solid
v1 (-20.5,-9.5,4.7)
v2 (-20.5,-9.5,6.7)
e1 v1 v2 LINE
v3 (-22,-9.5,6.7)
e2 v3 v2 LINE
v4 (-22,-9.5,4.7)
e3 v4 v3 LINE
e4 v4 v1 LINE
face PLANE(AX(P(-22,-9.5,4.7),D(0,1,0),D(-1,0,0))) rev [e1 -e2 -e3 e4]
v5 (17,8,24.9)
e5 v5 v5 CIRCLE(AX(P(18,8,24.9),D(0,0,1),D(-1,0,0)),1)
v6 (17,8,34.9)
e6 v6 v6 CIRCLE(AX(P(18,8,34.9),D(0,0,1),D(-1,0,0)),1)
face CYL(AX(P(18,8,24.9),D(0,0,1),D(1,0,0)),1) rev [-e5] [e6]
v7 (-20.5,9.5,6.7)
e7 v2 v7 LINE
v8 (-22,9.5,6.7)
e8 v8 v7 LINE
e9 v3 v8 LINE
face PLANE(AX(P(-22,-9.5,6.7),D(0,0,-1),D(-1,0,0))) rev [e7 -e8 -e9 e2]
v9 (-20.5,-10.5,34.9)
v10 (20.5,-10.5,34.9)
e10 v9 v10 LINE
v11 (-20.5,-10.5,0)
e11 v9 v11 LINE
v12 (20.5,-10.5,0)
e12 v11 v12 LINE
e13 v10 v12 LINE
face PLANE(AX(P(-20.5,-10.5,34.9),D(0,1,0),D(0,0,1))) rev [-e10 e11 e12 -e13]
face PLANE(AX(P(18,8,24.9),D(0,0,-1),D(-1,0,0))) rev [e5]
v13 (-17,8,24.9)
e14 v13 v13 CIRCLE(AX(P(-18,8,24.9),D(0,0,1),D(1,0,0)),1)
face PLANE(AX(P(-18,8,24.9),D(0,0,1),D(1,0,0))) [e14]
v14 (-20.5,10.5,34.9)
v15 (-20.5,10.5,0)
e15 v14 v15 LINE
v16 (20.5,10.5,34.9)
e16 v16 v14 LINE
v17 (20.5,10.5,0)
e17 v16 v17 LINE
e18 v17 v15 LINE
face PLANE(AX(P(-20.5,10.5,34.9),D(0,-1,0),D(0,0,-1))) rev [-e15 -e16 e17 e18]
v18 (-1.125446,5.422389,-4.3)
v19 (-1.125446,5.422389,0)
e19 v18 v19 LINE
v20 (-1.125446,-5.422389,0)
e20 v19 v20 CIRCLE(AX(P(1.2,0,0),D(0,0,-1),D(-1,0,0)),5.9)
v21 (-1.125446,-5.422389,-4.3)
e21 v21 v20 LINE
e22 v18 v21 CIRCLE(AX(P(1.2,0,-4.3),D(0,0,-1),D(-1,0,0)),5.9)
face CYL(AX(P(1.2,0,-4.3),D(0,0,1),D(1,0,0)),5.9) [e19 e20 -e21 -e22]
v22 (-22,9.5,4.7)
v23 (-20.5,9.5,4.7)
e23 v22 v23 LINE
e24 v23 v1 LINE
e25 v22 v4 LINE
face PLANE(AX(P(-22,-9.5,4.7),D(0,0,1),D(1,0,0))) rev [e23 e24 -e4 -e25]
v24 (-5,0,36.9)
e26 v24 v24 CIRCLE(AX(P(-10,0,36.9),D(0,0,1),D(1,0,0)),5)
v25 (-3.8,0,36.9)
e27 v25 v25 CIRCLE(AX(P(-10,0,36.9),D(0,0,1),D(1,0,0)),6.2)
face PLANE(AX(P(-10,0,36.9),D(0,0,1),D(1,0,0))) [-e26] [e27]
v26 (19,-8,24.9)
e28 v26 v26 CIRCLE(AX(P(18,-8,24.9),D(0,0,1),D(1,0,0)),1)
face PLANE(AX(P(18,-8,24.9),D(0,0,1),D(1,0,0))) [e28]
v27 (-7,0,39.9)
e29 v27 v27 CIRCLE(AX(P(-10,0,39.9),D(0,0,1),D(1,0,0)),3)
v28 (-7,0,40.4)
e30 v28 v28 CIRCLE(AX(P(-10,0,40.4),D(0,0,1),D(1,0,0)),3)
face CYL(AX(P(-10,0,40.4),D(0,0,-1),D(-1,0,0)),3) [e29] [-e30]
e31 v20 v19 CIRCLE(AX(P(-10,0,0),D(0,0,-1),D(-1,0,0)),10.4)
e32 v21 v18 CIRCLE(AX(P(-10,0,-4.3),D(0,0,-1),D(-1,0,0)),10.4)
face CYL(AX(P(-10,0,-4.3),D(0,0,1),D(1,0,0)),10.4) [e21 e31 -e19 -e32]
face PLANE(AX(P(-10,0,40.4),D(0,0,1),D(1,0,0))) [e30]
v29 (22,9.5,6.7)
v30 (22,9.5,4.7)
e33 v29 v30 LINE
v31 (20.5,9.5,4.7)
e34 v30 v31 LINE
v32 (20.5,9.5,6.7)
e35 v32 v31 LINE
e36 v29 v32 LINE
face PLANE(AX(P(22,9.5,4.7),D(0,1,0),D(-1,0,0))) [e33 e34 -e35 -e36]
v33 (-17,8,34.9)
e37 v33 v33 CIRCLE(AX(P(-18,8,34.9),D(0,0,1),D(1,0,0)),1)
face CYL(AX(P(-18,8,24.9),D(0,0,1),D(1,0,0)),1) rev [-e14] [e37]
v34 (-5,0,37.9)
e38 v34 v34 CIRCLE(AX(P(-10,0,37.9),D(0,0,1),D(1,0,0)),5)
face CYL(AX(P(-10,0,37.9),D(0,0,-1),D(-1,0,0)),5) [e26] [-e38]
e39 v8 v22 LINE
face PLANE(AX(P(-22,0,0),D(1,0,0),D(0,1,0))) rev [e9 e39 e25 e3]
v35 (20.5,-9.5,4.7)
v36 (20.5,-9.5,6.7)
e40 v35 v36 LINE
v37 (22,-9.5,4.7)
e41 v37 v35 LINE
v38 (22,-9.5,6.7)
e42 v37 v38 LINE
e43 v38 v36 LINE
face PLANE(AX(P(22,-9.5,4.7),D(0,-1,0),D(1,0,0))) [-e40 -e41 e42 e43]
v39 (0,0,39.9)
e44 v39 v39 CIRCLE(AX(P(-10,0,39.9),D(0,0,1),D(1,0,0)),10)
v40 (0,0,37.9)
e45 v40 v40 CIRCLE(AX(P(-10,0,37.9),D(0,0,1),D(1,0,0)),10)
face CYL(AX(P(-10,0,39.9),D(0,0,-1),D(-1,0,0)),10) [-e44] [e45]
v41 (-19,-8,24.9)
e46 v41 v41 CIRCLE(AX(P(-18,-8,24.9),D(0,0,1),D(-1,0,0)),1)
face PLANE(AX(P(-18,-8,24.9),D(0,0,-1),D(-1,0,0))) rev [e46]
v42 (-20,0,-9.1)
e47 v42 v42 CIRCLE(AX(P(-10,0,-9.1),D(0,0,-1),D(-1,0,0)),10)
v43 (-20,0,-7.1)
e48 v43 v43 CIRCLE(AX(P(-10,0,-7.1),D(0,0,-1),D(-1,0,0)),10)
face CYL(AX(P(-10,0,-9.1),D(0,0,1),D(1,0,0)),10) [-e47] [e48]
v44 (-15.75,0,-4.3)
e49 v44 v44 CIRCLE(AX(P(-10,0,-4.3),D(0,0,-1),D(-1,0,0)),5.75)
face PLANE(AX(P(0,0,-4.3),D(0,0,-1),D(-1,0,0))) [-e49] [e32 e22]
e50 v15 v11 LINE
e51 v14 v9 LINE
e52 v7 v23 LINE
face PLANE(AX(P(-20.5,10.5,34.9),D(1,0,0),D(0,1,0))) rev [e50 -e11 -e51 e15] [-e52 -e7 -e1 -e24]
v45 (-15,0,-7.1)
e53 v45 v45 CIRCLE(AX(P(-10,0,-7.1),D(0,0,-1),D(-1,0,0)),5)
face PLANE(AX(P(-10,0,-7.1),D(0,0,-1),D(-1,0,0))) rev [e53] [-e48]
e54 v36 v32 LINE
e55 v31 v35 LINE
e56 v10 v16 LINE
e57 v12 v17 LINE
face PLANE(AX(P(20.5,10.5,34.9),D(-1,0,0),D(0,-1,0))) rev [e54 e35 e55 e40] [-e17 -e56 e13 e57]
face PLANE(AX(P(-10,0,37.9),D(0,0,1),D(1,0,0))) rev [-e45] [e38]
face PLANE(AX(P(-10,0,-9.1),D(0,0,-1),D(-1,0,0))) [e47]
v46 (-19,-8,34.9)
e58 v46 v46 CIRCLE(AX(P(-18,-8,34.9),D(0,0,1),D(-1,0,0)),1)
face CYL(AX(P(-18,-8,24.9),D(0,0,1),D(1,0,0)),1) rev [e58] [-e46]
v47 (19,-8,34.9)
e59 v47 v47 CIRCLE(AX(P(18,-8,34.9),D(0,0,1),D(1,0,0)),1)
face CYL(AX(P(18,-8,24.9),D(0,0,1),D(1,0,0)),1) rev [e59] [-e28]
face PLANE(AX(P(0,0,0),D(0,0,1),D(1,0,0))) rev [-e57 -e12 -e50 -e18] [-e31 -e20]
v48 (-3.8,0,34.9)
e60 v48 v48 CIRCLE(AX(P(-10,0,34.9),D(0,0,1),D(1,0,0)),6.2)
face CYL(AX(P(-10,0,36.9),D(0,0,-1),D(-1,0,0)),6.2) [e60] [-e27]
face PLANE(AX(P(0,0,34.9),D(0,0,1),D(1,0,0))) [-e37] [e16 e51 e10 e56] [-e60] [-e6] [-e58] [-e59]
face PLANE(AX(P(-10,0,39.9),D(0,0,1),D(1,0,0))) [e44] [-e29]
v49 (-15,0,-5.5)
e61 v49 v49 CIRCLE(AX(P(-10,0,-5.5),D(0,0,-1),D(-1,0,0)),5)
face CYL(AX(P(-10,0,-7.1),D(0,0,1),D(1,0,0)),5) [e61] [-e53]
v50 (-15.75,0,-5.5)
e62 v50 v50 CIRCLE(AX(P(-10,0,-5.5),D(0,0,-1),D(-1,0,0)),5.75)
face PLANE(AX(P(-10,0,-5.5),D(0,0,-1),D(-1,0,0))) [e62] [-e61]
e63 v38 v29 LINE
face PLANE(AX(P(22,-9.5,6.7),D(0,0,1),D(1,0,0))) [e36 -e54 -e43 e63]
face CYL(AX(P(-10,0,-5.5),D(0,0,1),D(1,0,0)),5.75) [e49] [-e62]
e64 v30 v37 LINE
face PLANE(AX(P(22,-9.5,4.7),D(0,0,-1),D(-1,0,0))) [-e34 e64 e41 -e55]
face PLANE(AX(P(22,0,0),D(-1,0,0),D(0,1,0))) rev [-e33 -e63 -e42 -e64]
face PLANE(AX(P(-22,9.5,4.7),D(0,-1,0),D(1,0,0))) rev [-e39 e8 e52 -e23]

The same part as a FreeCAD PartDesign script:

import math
import FreeCAD as App
import Part
import Sketcher
from FreeCAD import Vector
Q = App.Units.Quantity


def add_polygon(sketch, points):
    """Adds a closed chain of lines whose ends are joined by coincident constraints."""
    first, n = sketch.GeometryCount, len(points)
    for a, b in zip(points, points[1:] + points[:1]):
        sketch.addGeometry(Part.LineSegment(App.Vector(*a, 0), App.Vector(*b, 0)), False)
    for i in range(n):
        sketch.addConstraint(Sketcher.Constraint("Coincident", first + i, 2, first + (i + 1) % n, 1))

doc = App.newDocument("Part")
body = doc.addObject("PartDesign::Body", "Body")

# Sketch on XY plane
sketch1 = doc.addObject("Sketcher::SketchObject", "Sketch")
body.addObject(sketch1)
sketch1.AttachmentSupport = (doc.XY_Plane, [""])
sketch1.MapMode = "FlatFace"
add_polygon(sketch1, [(-20, 10), (-20, -10), (20, -10), (20, 10)])  # lines 0-3
sketch1.addConstraint([
    Sketcher.Constraint("Vertical", 0),
    Sketcher.Constraint("Horizontal", 1),
    Sketcher.Constraint("Vertical", 2),
    Sketcher.Constraint("Horizontal", 3),
    Sketcher.Constraint("Symmetric", 0, 2, 2, 2, -1, 1),
    Sketcher.Constraint("DistanceX", 1, 1, 1, 2, Q("41 mm")),
    Sketcher.Constraint("DistanceY", 0, 2, 0, 1, Q("21 mm")),
])
pad1 = doc.addObject("PartDesign::Pad", "Pad")
body.addObject(pad1)
pad1.Profile = sketch1
pad1.Length = 34.9

# Sketch on XY plane
sketch2 = doc.addObject("Sketcher::SketchObject", "Sketch001")
body.addObject(sketch2)
sketch2.AttachmentSupport = (doc.XY_Plane, [""])
sketch2.MapMode = "FlatFace"
sketch2.addGeometry([
    Part.ArcOfCircle(Part.Circle(Vector(1, 0, 0), Vector(0, 0, 1), 6), math.radians(-113), math.radians(113)),
    Part.ArcOfCircle(Part.Circle(Vector(-10, 0, 0), Vector(0, 0, 1), 10), math.radians(31), math.radians(329)),
], False)
sketch2.addConstraint([
    Sketcher.Constraint("Coincident", 0, 1, 1, 2),
    Sketcher.Constraint("Coincident", 1, 1, 0, 2),
    Sketcher.Constraint("Symmetric", 0, 1, 1, 1, -1),
    Sketcher.Constraint("Radius", 0, Q("5.9 mm")),
    Sketcher.Constraint("Radius", 1, Q("10.4 mm")),
    Sketcher.Constraint("DistanceX", 1, 3, -1, 1, Q("10 mm")),
    Sketcher.Constraint("DistanceX", -1, 1, 0, 3, Q("1.2 mm")),
])
pad2 = doc.addObject("PartDesign::Pad", "Pad001")
body.addObject(pad2)
pad2.Profile = sketch2
pad2.Length = 4.3
pad2.Reversed = True

# Sketch on XY plane
sketch3 = doc.addObject("Sketcher::SketchObject", "Sketch002")
body.addObject(sketch3)
sketch3.AttachmentSupport = (doc.XY_Plane, [""])
sketch3.MapMode = "FlatFace"
sketch3.AttachmentOffset = App.Placement(Vector(0, 0, -4.3), App.Rotation())
sketch3.addGeometry(Part.Circle(Vector(-10, 0, 0), Vector(0, 0, 1), 6), False)
sketch3.addConstraint([
    Sketcher.Constraint("PointOnObject", 0, 3, -1),
    Sketcher.Constraint("Diameter", 0, Q("11.5 mm")),
    Sketcher.Constraint("DistanceX", 0, 3, -1, 1, Q("10 mm")),
])
pad3 = doc.addObject("PartDesign::Pad", "Pad002")
body.addObject(pad3)
pad3.Profile = sketch3
pad3.Length = 1.2
pad3.Reversed = True

# Sketch on XY plane
sketch4 = doc.addObject("Sketcher::SketchObject", "Sketch003")
body.addObject(sketch4)
sketch4.AttachmentSupport = (doc.XY_Plane, [""])
sketch4.MapMode = "FlatFace"
sketch4.AttachmentOffset = App.Placement(Vector(0, 0, -5.5), App.Rotation())
sketch4.addGeometry(Part.Circle(Vector(-10, 0, 0), Vector(0, 0, 1), 3), False)
sketch4.addConstraint([
    Sketcher.Constraint("PointOnObject", 0, 3, -1),
    Sketcher.Constraint("Diameter", 0, Q("6 mm")),
    Sketcher.Constraint("DistanceX", 0, 3, -1, 1, Q("10 mm")),
])
pad4 = doc.addObject("PartDesign::Pad", "Pad003")
body.addObject(pad4)
pad4.Profile = sketch4
pad4.Length = 3.4
pad4.Reversed = True

# Sketch on YZ plane
sketch5 = doc.addObject("Sketcher::SketchObject", "Sketch004")
body.addObject(sketch5)
sketch5.AttachmentSupport = (doc.YZ_Plane, [""])
sketch5.MapMode = "FlatFace"
sketch5.AttachmentOffset = App.Placement(Vector(0, 0, -20.5), App.Rotation())
add_polygon(sketch5, [(9.5, 4.7), (-9.5, 4.7), (-9.5, 6.7), (9.5, 6.7)])  # lines 0-3
sketch5.addConstraint([
    Sketcher.Constraint("Horizontal", 0),
    Sketcher.Constraint("Vertical", 1),
    Sketcher.Constraint("Horizontal", 2),
    Sketcher.Constraint("Vertical", 3),
    Sketcher.Constraint("DistanceX", 0, 2, 0, 1, Q("19 mm")),
    Sketcher.Constraint("DistanceY", 1, 1, 1, 2, Q("2 mm")),
    Sketcher.Constraint("DistanceX", 0, 2, -1, 1, Q("9.5 mm")),
    Sketcher.Constraint("DistanceY", -1, 1, 0, 2, Q("4.7 mm")),
])
pad5 = doc.addObject("PartDesign::Pad", "Pad004")
body.addObject(pad5)
pad5.Profile = sketch5
pad5.Length = 1.5
pad5.Reversed = True
doc.recompute()

mirrored = doc.addObject("PartDesign::Mirrored", "Mirrored")
body.addObject(mirrored)
mirrored.Originals = [pad5]
mirrored.MirrorPlane = (doc.YZ_Plane, [""])
body.Tip = mirrored

# Sketch on XY plane
sketch6 = doc.addObject("Sketcher::SketchObject", "Sketch005")
body.addObject(sketch6)
sketch6.AttachmentSupport = (doc.XY_Plane, [""])
sketch6.MapMode = "FlatFace"
sketch6.AttachmentOffset = App.Placement(Vector(0, 0, 34.9), App.Rotation())
sketch6.addGeometry(Part.Circle(Vector(-10, 0, 0), Vector(0, 0, 1), 6), False)
sketch6.addConstraint([
    Sketcher.Constraint("PointOnObject", 0, 3, -1),
    Sketcher.Constraint("Diameter", 0, Q("12.4 mm")),
    Sketcher.Constraint("DistanceX", 0, 3, -1, 1, Q("10 mm")),
])
pad6 = doc.addObject("PartDesign::Pad", "Pad005")
body.addObject(pad6)
pad6.Profile = sketch6
pad6.Length = 2

# Sketch on XY plane
sketch7 = doc.addObject("Sketcher::SketchObject", "Sketch006")
body.addObject(sketch7)
sketch7.AttachmentSupport = (doc.XY_Plane, [""])
sketch7.MapMode = "FlatFace"
sketch7.AttachmentOffset = App.Placement(Vector(0, 0, 36.9), App.Rotation())
sketch7.addGeometry(Part.Circle(Vector(-10, 0, 0), Vector(0, 0, 1), 3), False)
sketch7.addConstraint([
    Sketcher.Constraint("PointOnObject", 0, 3, -1),
    Sketcher.Constraint("Diameter", 0, Q("6 mm")),
    Sketcher.Constraint("DistanceX", 0, 3, -1, 1, Q("10 mm")),
])
pad7 = doc.addObject("PartDesign::Pad", "Pad006")
body.addObject(pad7)
pad7.Profile = sketch7
pad7.Length = 3.5

# Sketch on XY plane
sketch8 = doc.addObject("Sketcher::SketchObject", "Sketch007")
body.addObject(sketch8)
sketch8.AttachmentSupport = (doc.XY_Plane, [""])
sketch8.MapMode = "FlatFace"
sketch8.AttachmentOffset = App.Placement(Vector(0, 0, 34.9), App.Rotation())
sketch8.addGeometry([
    Part.Circle(Vector(-18, 8, 0), Vector(0, 0, 1), 1),
    Part.Circle(Vector(18, 8, 0), Vector(0, 0, 1), 1),
    Part.Circle(Vector(18, -8, 0), Vector(0, 0, 1), 1),
    Part.Circle(Vector(-18, -8, 0), Vector(0, 0, 1), 1),
], False)
sketch8.addConstraint([
    Sketcher.Constraint("Equal", 0, 1),
    Sketcher.Constraint("Equal", 1, 2),
    Sketcher.Constraint("Equal", 2, 3),
    Sketcher.Constraint("Symmetric", 0, 3, 2, 3, -1, 1),
    Sketcher.Constraint("Symmetric", 1, 3, 3, 3, -1, 1),
    Sketcher.Constraint("Symmetric", 0, 3, 1, 3, -2),
    Sketcher.Constraint("Diameter", 0, Q("2 mm")),
    Sketcher.Constraint("DistanceX", 0, 3, -1, 1, Q("18 mm")),
    Sketcher.Constraint("DistanceY", -1, 1, 0, 3, Q("8 mm")),
])
pocket1 = doc.addObject("PartDesign::Pocket", "Pocket")
body.addObject(pocket1)
pocket1.Profile = sketch8
pocket1.Length = 10

# Sketch on XY plane
sketch9 = doc.addObject("Sketcher::SketchObject", "Sketch008")
body.addObject(sketch9)
sketch9.AttachmentSupport = (doc.XY_Plane, [""])
sketch9.MapMode = "FlatFace"
sketch9.AttachmentOffset = App.Placement(Vector(0, 0, 36.9), App.Rotation())
sketch9.addGeometry(Part.Circle(Vector(-10, 0, 0), Vector(0, 0, 1), 5), False)
sketch9.addConstraint([
    Sketcher.Constraint("PointOnObject", 0, 3, -1),
    Sketcher.Constraint("Diameter", 0, Q("10 mm")),
    Sketcher.Constraint("DistanceX", 0, 3, -1, 1, Q("10 mm")),
])
pad8 = doc.addObject("PartDesign::Pad", "Pad007")
body.addObject(pad8)
pad8.Profile = sketch9
pad8.Length = 1

# Sketch on XY plane
sketch10 = doc.addObject("Sketcher::SketchObject", "Sketch009")
body.addObject(sketch10)
sketch10.AttachmentSupport = (doc.XY_Plane, [""])
sketch10.MapMode = "FlatFace"
sketch10.AttachmentOffset = App.Placement(Vector(0, 0, 37.9), App.Rotation())
sketch10.addGeometry(Part.Circle(Vector(-10, 0, 0), Vector(0, 0, 1), 10), False)
sketch10.addConstraint([
    Sketcher.Constraint("PointOnObject", 0, 3, -1),
    Sketcher.Constraint("Diameter", 0, Q("20 mm")),
    Sketcher.Constraint("DistanceX", 0, 3, -1, 1, Q("10 mm")),
])
pad9 = doc.addObject("PartDesign::Pad", "Pad008")
body.addObject(pad9)
pad9.Profile = sketch10
pad9.Length = 2

# Sketch on XY plane
sketch11 = doc.addObject("Sketcher::SketchObject", "Sketch010")
body.addObject(sketch11)
sketch11.AttachmentSupport = (doc.XY_Plane, [""])
sketch11.MapMode = "FlatFace"
sketch11.AttachmentOffset = App.Placement(Vector(0, 0, -5.5), App.Rotation())
sketch11.addGeometry(Part.Circle(Vector(-10, 0, 0), Vector(0, 0, 1), 5), False)
sketch11.addConstraint([
    Sketcher.Constraint("PointOnObject", 0, 3, -1),
    Sketcher.Constraint("Diameter", 0, Q("10 mm")),
    Sketcher.Constraint("DistanceX", 0, 3, -1, 1, Q("10 mm")),
])
pad10 = doc.addObject("PartDesign::Pad", "Pad009")
body.addObject(pad10)
pad10.Profile = sketch11
pad10.Length = 1.6
pad10.Reversed = True

# Sketch on XY plane
sketch12 = doc.addObject("Sketcher::SketchObject", "Sketch011")
body.addObject(sketch12)
sketch12.AttachmentSupport = (doc.XY_Plane, [""])
sketch12.MapMode = "FlatFace"
sketch12.AttachmentOffset = App.Placement(Vector(0, 0, -7.1), App.Rotation())
sketch12.addGeometry(Part.Circle(Vector(-10, 0, 0), Vector(0, 0, 1), 10), False)
sketch12.addConstraint([
    Sketcher.Constraint("PointOnObject", 0, 3, -1),
    Sketcher.Constraint("Diameter", 0, Q("20 mm")),
    Sketcher.Constraint("DistanceX", 0, 3, -1, 1, Q("10 mm")),
])
pad11 = doc.addObject("PartDesign::Pad", "Pad010")
body.addObject(pad11)
pad11.Profile = sketch12
pad11.Length = 2
pad11.Reversed = True

doc.recompute()
